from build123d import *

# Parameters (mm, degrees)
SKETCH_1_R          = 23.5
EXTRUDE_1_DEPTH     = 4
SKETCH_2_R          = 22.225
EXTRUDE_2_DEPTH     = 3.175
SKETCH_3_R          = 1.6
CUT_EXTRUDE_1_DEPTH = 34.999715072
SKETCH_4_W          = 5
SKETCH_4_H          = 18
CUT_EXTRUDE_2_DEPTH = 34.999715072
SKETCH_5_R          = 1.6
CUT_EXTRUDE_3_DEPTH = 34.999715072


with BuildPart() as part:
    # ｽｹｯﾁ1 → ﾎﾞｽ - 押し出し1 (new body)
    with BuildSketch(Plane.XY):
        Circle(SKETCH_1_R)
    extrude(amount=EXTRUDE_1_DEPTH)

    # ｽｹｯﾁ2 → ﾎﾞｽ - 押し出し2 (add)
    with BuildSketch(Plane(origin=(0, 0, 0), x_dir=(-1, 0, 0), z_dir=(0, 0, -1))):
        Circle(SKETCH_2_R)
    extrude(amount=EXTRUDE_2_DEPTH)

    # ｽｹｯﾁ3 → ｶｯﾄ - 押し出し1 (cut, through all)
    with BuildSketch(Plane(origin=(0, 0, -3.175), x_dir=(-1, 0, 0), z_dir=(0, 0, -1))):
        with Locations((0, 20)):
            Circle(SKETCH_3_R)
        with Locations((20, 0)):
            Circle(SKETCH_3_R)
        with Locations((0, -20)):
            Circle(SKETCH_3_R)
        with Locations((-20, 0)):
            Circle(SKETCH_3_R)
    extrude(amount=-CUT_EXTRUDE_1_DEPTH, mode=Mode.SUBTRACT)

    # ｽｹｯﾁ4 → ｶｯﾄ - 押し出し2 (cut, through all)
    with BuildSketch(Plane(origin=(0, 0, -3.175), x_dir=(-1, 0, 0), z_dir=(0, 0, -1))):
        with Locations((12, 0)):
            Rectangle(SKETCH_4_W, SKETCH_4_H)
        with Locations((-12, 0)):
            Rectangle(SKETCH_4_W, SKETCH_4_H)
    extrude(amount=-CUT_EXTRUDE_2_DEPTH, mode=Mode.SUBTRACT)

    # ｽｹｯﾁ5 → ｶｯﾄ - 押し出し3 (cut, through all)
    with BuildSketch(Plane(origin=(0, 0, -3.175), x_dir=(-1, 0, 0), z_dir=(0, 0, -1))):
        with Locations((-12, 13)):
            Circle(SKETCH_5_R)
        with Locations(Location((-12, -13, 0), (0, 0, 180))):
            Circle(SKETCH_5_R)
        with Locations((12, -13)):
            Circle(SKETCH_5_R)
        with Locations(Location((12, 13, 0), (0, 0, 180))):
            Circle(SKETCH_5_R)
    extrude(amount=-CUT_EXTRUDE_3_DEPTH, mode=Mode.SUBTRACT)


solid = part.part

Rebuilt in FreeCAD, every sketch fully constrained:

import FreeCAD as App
import Part
import Sketcher

V = App.Vector
Q = App.Units.Quantity


def add_polygon(sketch, points):
    """Adds a closed chain of lines whose ends are joined by coincident constraints."""
    first, n = sketch.GeometryCount, len(points)
    for a, b in zip(points, points[1:] + points[:1]):
        sketch.addGeometry(Part.LineSegment(App.Vector(*a, 0), App.Vector(*b, 0)), False)
    for i in range(n):
        sketch.addConstraint(Sketcher.Constraint("Coincident", first + i, 2, first + (i + 1) % n, 1))

doc = App.newDocument("Part")
params = doc.addObject("Spreadsheet::Sheet", "Params")
for row, (alias, value) in enumerate([
    ("sketch1_diameter", "47 mm"),
    ("pad1_length", "4 mm"),
    ("sketch2_diameter", "44.45 mm"),
    ("pad2_length", "3.175 mm"),
    ("sketch3_diameter", "3.2 mm"),
    ("sketch4_width", "5 mm"),
    ("sketch4_height", "18 mm"),
    ("sketch5_diameter", "3.2 mm"),
], start=1):
    params.set(f"A{row}", alias)
    params.set(f"B{row}", "=" + value)
    params.setAlias(f"B{row}", alias)

body = doc.addObject("PartDesign::Body", "Body")

sketch1 = body.newObject("Sketcher::SketchObject", "Sketch")
sketch1.AttachmentSupport = (doc.getObject("XY_Plane"), [""])
sketch1.MapMode = "FlatFace"
sketch1.addGeometry(Part.Circle(V(0, 0, 0), V(0, 0, 1), 24), False)
sketch1.addConstraint(Sketcher.Constraint("Coincident", 0, 3, -1, 1))
sketch1.addConstraint(Sketcher.Constraint("Diameter", 0, Q("47 mm")))
sketch1.setExpression("Constraints[1]", "Params.sketch1_diameter")
pad1 = body.newObject("PartDesign::Pad", "Pad")
pad1.Profile = sketch1
pad1.setExpression("Length", "Params.pad1_length")

sketch2 = body.newObject("Sketcher::SketchObject", "Sketch001")
sketch2.AttachmentSupport = (doc.getObject("XY_Plane"), [""])
sketch2.MapMode = "FlatFace"
sketch2.addGeometry(Part.Circle(V(0, 0, 0), V(0, 0, 1), 22), False)
sketch2.addConstraint(Sketcher.Constraint("Coincident", 0, 3, -1, 1))
sketch2.addConstraint(Sketcher.Constraint("Diameter", 0, Q("44.45 mm")))
sketch2.setExpression("Constraints[1]", "Params.sketch2_diameter")
pad2 = body.newObject("PartDesign::Pad", "Pad001")
pad2.Profile = sketch2
pad2.setExpression("Length", "Params.pad2_length")
pad2.Reversed = True

sketch3 = body.newObject("Sketcher::SketchObject", "Sketch002")
sketch3.AttachmentSupport = (doc.getObject("XY_Plane"), [""])
sketch3.MapMode = "FlatFace"
sketch3.AttachmentOffset = App.Placement(V(0, 0, -3.175), App.Rotation())
sketch3.addGeometry(Part.Circle(V(0, 20, 0), V(0, 0, 1), 1.6), False)
sketch3.addGeometry(Part.Circle(V(-20, 0, 0), V(0, 0, 1), 1.6), False)
sketch3.addGeometry(Part.Circle(V(0, -20, 0), V(0, 0, 1), 1.6), False)
sketch3.addGeometry(Part.Circle(V(20, 0, 0), V(0, 0, 1), 1.6), False)
sketch3.addConstraint(Sketcher.Constraint("Equal", 0, 1))
sketch3.addConstraint(Sketcher.Constraint("Equal", 1, 2))
sketch3.addConstraint(Sketcher.Constraint("Equal", 2, 3))
sketch3.addConstraint(Sketcher.Constraint("Symmetric", 0, 3, 2, 3, -1, 1))
sketch3.addConstraint(Sketcher.Constraint("Symmetric", 1, 3, 3, 3, -1, 1))
sketch3.addConstraint(Sketcher.Constraint("PointOnObject", 0, 3, -2))
sketch3.addConstraint(Sketcher.Constraint("PointOnObject", 1, 3, -1))
sketch3.addConstraint(Sketcher.Constraint("Diameter", 0, Q("3.2 mm")))
sketch3.addConstraint(Sketcher.Constraint("DistanceY", -1, 1, 0, 3, Q("20 mm")))
sketch3.addConstraint(Sketcher.Constraint("DistanceX", 1, 3, -1, 1, Q("20 mm")))
sketch3.setExpression("Constraints[7]", "Params.sketch3_diameter")
pocket1 = body.newObject("PartDesign::Pocket", "Pocket")
pocket1.Profile = sketch3
pocket1.Type = "ThroughAll"
pocket1.Reversed = True

sketch4 = body.newObject("Sketcher::SketchObject", "Sketch003")
sketch4.AttachmentSupport = (doc.getObject("XY_Plane"), [""])
sketch4.MapMode = "FlatFace"
sketch4.AttachmentOffset = App.Placement(V(0, 0, -3.175), App.Rotation())
add_polygon(sketch4, [(-10, 9), (-10, -9), (-14, -9), (-14, 9)])
add_polygon(sketch4, [(14, 9), (14, -9), (10, -9), (10, 9)])
sketch4.addConstraint(Sketcher.Constraint("Vertical", 0))
sketch4.addConstraint(Sketcher.Constraint("Horizontal", 1))
sketch4.addConstraint(Sketcher.Constraint("Vertical", 2))
sketch4.addConstraint(Sketcher.Constraint("Horizontal", 3))
sketch4.addConstraint(Sketcher.Constraint("Vertical", 4))
sketch4.addConstraint(Sketcher.Constraint("Horizontal", 5))
sketch4.addConstraint(Sketcher.Constraint("Vertical", 6))
sketch4.addConstraint(Sketcher.Constraint("Horizontal", 7))
sketch4.addConstraint(Sketcher.Constraint("Symmetric", 2, 2, 4, 2, -1, 1))
sketch4.addConstraint(Sketcher.Constraint("Symmetric", 0, 2, 6, 2, -1, 1))
sketch4.addConstraint(Sketcher.Constraint("Horizontal", 1, 2, 4, 2))
sketch4.addConstraint(Sketcher.Constraint("DistanceX", 1, 2, 1, 1, Q("5 mm")))
sketch4.addConstraint(Sketcher.Constraint("DistanceY", 0, 2, 0, 1, Q("18 mm")))
sketch4.addConstraint(Sketcher.Constraint("DistanceX", 0, 2, 4, 2, Q("24 mm")))
sketch4.setExpression("Constraints[19]", "Params.sketch4_width")
sketch4.setExpression("Constraints[20]", "Params.sketch4_height")
pocket2 = body.newObject("PartDesign::Pocket", "Pocket001")
pocket2.Profile = sketch4
pocket2.Type = "ThroughAll"
pocket2.Reversed = True

sketch5 = body.newObject("Sketcher::SketchObject", "Sketch004")
sketch5.AttachmentSupport = (doc.getObject("XY_Plane"), [""])
sketch5.MapMode = "FlatFace"
sketch5.AttachmentOffset = App.Placement(V(0, 0, -3.175), App.Rotation())
sketch5.addGeometry(Part.Circle(V(12, 13, 0), V(0, 0, 1), 1.6), False)
sketch5.addGeometry(Part.Circle(V(12, -13, 0), V(0, 0, 1), 1.6), False)
sketch5.addGeometry(Part.Circle(V(-12, -13, 0), V(0, 0, 1), 1.6), False)
sketch5.addGeometry(Part.Circle(V(-12, 13, 0), V(0, 0, 1), 1.6), False)
sketch5.addConstraint(Sketcher.Constraint("Equal", 0, 1))
sketch5.addConstraint(Sketcher.Constraint("Equal", 1, 2))
sketch5.addConstraint(Sketcher.Constraint("Equal", 2, 3))
sketch5.addConstraint(Sketcher.Constraint("Symmetric", 0, 3, 2, 3, -1, 1))
sketch5.addConstraint(Sketcher.Constraint("Symmetric", 1, 3, 3, 3, -1, 1))
sketch5.addConstraint(Sketcher.Constraint("Symmetric", 1, 3, 2, 3, -2))
sketch5.addConstraint(Sketcher.Constraint("Diameter", 0, Q("3.2 mm")))
sketch5.addConstraint(Sketcher.Constraint("DistanceX", -1, 1, 0, 3, Q("12 mm")))
sketch5.addConstraint(Sketcher.Constraint("DistanceY", -1, 1, 0, 3, Q("13 mm")))
sketch5.setExpression("Constraints[6]", "Params.sketch5_diameter")
pocket3 = body.newObject("PartDesign::Pocket", "Pocket002")
pocket3.Profile = sketch5
pocket3.Type = "ThroughAll"
pocket3.Reversed = True

doc.recompute()
